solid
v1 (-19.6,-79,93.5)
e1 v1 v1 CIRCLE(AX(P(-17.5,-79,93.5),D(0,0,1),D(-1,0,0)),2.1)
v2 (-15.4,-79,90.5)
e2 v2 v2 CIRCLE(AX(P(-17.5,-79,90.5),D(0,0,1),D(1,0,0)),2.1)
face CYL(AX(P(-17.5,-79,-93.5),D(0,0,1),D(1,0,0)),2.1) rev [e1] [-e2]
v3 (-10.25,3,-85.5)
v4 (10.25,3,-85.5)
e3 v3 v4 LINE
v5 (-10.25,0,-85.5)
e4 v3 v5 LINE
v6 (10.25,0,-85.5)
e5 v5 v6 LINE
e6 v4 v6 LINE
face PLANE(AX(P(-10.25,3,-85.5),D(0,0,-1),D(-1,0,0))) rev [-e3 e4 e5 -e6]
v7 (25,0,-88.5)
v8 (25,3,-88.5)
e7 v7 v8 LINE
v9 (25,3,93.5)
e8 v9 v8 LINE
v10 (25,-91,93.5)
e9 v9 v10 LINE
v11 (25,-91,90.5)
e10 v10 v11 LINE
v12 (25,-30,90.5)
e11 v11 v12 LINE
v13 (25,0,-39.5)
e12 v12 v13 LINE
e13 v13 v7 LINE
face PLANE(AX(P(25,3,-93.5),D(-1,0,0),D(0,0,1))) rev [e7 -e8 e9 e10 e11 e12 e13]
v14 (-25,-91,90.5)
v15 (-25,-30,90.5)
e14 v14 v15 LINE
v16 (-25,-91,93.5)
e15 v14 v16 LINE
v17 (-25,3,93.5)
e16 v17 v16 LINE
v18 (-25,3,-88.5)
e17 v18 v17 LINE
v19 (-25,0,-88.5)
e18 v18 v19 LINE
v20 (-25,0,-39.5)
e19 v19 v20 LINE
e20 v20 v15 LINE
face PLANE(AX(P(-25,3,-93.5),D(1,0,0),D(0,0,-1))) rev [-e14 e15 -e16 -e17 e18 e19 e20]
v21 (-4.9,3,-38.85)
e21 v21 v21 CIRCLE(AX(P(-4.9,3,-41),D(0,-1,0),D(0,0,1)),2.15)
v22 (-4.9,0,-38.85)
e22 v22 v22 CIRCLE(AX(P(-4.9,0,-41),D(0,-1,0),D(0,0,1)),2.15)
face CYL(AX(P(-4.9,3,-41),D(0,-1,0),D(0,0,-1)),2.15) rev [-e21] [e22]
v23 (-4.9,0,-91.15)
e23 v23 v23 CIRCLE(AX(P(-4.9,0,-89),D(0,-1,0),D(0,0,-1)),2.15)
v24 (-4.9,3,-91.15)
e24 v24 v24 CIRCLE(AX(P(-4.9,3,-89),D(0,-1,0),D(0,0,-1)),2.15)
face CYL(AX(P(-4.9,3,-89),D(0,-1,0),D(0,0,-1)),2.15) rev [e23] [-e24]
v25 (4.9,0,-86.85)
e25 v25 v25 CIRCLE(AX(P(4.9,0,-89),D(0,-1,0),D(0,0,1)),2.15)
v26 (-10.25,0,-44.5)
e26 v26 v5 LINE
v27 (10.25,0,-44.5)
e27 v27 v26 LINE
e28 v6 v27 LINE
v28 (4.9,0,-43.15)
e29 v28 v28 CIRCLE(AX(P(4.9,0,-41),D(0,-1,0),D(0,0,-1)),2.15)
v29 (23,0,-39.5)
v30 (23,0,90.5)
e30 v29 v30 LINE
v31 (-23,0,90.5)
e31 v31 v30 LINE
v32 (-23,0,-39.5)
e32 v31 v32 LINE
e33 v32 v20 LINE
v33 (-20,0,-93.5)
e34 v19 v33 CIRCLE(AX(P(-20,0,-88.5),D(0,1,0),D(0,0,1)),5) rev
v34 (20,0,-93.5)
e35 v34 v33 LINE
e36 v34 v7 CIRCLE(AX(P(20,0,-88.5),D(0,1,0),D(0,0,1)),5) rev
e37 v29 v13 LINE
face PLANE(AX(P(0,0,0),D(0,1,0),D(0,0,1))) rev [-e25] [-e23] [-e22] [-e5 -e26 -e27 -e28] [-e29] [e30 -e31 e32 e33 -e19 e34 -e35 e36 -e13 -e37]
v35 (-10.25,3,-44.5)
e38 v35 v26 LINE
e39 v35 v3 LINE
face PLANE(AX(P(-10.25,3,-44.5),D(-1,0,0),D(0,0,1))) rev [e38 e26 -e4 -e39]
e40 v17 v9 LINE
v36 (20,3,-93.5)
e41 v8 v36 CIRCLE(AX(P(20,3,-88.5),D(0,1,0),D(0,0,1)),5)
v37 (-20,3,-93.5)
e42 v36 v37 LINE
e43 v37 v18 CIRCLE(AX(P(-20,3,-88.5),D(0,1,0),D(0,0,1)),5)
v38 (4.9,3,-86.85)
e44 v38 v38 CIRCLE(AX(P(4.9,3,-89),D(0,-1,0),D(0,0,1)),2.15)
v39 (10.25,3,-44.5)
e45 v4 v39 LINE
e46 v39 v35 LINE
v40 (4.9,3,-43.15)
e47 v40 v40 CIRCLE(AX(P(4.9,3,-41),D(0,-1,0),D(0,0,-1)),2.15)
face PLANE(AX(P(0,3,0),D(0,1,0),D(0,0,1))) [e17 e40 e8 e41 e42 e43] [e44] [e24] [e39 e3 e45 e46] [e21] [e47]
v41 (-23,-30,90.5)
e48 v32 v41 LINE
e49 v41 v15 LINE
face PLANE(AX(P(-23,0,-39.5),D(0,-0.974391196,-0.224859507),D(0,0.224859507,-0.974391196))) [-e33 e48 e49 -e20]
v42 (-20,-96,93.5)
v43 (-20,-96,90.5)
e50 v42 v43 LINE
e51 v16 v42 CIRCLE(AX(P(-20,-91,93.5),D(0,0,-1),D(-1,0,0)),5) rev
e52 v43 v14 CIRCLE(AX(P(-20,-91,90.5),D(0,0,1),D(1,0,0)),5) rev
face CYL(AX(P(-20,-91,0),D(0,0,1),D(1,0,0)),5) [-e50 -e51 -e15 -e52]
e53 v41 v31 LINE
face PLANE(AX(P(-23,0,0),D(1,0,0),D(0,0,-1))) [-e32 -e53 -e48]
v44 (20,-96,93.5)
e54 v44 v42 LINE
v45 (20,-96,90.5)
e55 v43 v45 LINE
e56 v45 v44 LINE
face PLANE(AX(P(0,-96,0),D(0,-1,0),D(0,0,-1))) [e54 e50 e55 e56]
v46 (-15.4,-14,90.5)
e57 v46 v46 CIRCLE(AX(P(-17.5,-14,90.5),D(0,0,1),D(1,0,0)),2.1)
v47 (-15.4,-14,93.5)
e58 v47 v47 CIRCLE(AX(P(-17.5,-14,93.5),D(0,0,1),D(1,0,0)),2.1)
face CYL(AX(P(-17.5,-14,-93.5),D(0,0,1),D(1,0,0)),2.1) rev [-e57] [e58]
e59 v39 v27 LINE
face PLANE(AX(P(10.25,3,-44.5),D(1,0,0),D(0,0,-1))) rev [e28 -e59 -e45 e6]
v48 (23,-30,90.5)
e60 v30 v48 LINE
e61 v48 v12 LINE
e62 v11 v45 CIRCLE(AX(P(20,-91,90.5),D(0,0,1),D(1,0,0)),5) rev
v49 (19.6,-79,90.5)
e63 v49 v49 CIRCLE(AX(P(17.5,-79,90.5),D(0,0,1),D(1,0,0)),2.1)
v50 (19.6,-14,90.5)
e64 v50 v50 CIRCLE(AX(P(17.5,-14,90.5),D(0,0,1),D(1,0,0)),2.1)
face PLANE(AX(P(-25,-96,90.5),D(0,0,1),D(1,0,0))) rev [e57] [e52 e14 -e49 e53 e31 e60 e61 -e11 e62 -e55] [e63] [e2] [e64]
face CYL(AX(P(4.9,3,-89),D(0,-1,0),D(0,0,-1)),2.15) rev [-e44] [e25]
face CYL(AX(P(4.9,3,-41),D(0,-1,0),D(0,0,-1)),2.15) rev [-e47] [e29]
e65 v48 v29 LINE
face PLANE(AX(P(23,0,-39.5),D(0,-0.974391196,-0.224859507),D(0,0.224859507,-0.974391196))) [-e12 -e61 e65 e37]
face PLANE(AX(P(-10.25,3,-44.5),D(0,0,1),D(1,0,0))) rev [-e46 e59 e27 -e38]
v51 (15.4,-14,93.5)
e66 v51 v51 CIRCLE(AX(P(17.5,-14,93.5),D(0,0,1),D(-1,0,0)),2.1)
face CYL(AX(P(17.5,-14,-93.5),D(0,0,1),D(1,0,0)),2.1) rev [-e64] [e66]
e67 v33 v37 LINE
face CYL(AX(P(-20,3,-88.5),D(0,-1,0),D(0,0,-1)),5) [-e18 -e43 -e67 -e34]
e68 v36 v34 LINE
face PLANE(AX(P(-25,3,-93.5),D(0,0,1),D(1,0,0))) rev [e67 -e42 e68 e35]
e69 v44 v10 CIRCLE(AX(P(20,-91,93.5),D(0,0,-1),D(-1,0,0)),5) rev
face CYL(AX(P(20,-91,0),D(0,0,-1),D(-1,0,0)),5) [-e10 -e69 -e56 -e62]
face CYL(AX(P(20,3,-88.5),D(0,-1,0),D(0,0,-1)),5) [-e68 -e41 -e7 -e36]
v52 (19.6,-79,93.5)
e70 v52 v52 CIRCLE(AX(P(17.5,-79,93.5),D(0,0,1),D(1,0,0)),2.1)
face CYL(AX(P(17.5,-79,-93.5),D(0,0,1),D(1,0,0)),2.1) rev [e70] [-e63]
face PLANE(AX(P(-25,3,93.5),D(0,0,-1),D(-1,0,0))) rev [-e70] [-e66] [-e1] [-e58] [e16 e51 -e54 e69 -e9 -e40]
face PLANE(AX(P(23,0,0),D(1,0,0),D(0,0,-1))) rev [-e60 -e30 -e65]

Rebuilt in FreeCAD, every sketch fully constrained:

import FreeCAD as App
import Part
import Sketcher


def edges_at(feature, points):
    """Names of the edges that pass closest to the given points."""
    edges = feature.Shape.Edges
    near = lambda p: min(range(len(edges)), key=lambda i: edges[i].distToShape(Part.Vertex(*p))[0])
    return sorted({f"Edge{near(p) + 1}" for p in points})

doc = App.newDocument("Part")
body = doc.addObject("PartDesign::Body", "Body")

sketch1 = body.newObject("Sketcher::SketchObject", "Sketch")
sketch1.AttachmentSupport = (doc.getObject("XZ_Plane"), [""])
sketch1.MapMode = "FlatFace"
sketch1.addGeometry(Part.LineSegment(App.Vector(-25, -94, 0), App.Vector(-25, 94, 0)), False)
sketch1.addGeometry(Part.LineSegment(App.Vector(-25, 94, 0), App.Vector(25, 94, 0)), False)
sketch1.addGeometry(Part.LineSegment(App.Vector(25, 94, 0), App.Vector(25, -94, 0)), False)
sketch1.addGeometry(Part.LineSegment(App.Vector(25, -94, 0), App.Vector(-25, -94, 0)), False)
sketch1.addConstraint(Sketcher.Constraint("Coincident", 0, 2, 1, 1))
sketch1.addConstraint(Sketcher.Constraint("Coincident", 1, 2, 2, 1))
sketch1.addConstraint(Sketcher.Constraint("Coincident", 2, 2, 3, 1))
sketch1.addConstraint(Sketcher.Constraint("Coincident", 3, 2, 0, 1))
sketch1.addConstraint(Sketcher.Constraint("Vertical", 0))
sketch1.addConstraint(Sketcher.Constraint("Horizontal", 1))
sketch1.addConstraint(Sketcher.Constraint("Vertical", 2))
sketch1.addConstraint(Sketcher.Constraint("Horizontal", 3))
sketch1.addConstraint(Sketcher.Constraint("Symmetric", 0, 2, 2, 2, -1, 1))
sketch1.addConstraint(Sketcher.Constraint("DistanceX", 1, 1, 1, 2, 50.0))
sketch1.addConstraint(Sketcher.Constraint("DistanceY", 0, 1, 0, 2, 187.0))
pad1 = body.newObject("PartDesign::Pad", "Pad")
pad1.Profile = sketch1
pad1.Length = 3
pad1.Reversed = True

sketch2 = body.newObject("Sketcher::SketchObject", "Sketch001")
sketch2.AttachmentSupport = (doc.getObject("XZ_Plane"), [""])
sketch2.MapMode = "FlatFace"
sketch2.addGeometry(Part.Circle(App.Vector(-4.9, -89, 0), App.Vector(0, 0, 1), 2.1), False)
sketch2.addGeometry(Part.Circle(App.Vector(4.9, -89, 0), App.Vector(0, 0, 1), 2.1), False)
sketch2.addGeometry(Part.Circle(App.Vector(4.9, -41, 0), App.Vector(0, 0, 1), 2.1), False)
sketch2.addGeometry(Part.Circle(App.Vector(-4.9, -41, 0), App.Vector(0, 0, 1), 2.1), False)
sketch2.addGeometry(Part.LineSegment(App.Vector(-10.2, -44.5, 0), App.Vector(-10.2, -85.5, 0)), False)
sketch2.addGeometry(Part.LineSegment(App.Vector(-10.2, -85.5, 0), App.Vector(10.2, -85.5, 0)), False)
sketch2.addGeometry(Part.LineSegment(App.Vector(10.2, -85.5, 0), App.Vector(10.2, -44.5, 0)), False)
sketch2.addGeometry(Part.LineSegment(App.Vector(10.2, -44.5, 0), App.Vector(-10.2, -44.5, 0)), False)
sketch2.addConstraint(Sketcher.Constraint("Coincident", 4, 2, 5, 1))
sketch2.addConstraint(Sketcher.Constraint("Coincident", 5, 2, 6, 1))
sketch2.addConstraint(Sketcher.Constraint("Coincident", 6, 2, 7, 1))
sketch2.addConstraint(Sketcher.Constraint("Coincident", 7, 2, 4, 1))
sketch2.addConstraint(Sketcher.Constraint("Vertical", 4))
sketch2.addConstraint(Sketcher.Constraint("Horizontal", 5))
sketch2.addConstraint(Sketcher.Constraint("Vertical", 6))
sketch2.addConstraint(Sketcher.Constraint("Horizontal", 7))
sketch2.addConstraint(Sketcher.Constraint("Equal", 0, 1))
sketch2.addConstraint(Sketcher.Constraint("Equal", 1, 2))
sketch2.addConstraint(Sketcher.Constraint("Equal", 2, 3))
sketch2.addConstraint(Sketcher.Constraint("Symmetric", 0, 3, 1, 3, -2))
sketch2.addConstraint(Sketcher.Constraint("Symmetric", 2, 3, 3, 3, -2))
sketch2.addConstraint(Sketcher.Constraint("Vertical", 1, 3, 2, 3))
sketch2.addConstraint(Sketcher.Constraint("Diameter", 0, 4.3))
sketch2.addConstraint(Sketcher.Constraint("DistanceY", 4, 2, 4, 1, 41.0))
sketch2.addConstraint(Sketcher.Constraint("DistanceX", 5, 1, 5, 2, 20.5))
sketch2.addConstraint(Sketcher.Constraint("DistanceY", 0, 3, -1, 1, 89.0))
sketch2.addConstraint(Sketcher.Constraint("DistanceY", 2, 3, -1, 1, 41.0))
sketch2.addConstraint(Sketcher.Constraint("DistanceX", 0, 3, -1, 1, 4.9))
sketch2.addConstraint(Sketcher.Constraint("DistanceY", 4, 2, -1, 1, 85.5))
sketch2.addConstraint(Sketcher.Constraint("DistanceX", 4, 2, -1, 1, 10.25))
pocket1 = body.newObject("PartDesign::Pocket", "Pocket")
pocket1.Profile = sketch2
pocket1.Type = "ThroughAll"

sketch3 = body.newObject("Sketcher::SketchObject", "Sketch002")
sketch3.AttachmentSupport = (doc.getObject("XZ_Plane"), [""])
sketch3.MapMode = "FlatFace"
sketch3.addGeometry(Part.LineSegment(App.Vector(-25, 93.5, 0), App.Vector(-25, 90.5, 0)), False)
sketch3.addGeometry(Part.LineSegment(App.Vector(-25, 90.5, 0), App.Vector(25, 90.5, 0)), False)
sketch3.addGeometry(Part.LineSegment(App.Vector(25, 90.5, 0), App.Vector(25, 93.5, 0)), False)
sketch3.addGeometry(Part.LineSegment(App.Vector(25, 93.5, 0), App.Vector(-25, 93.5, 0)), False)
sketch3.addConstraint(Sketcher.Constraint("Coincident", 0, 2, 1, 1))
sketch3.addConstraint(Sketcher.Constraint("Coincident", 1, 2, 2, 1))
sketch3.addConstraint(Sketcher.Constraint("Coincident", 2, 2, 3, 1))
sketch3.addConstraint(Sketcher.Constraint("Coincident", 3, 2, 0, 1))
sketch3.addConstraint(Sketcher.Constraint("Vertical", 0))
sketch3.addConstraint(Sketcher.Constraint("Horizontal", 1))
sketch3.addConstraint(Sketcher.Constraint("Vertical", 2))
sketch3.addConstraint(Sketcher.Constraint("Horizontal", 3))
sketch3.addConstraint(Sketcher.Constraint("DistanceX", 1, 1, 1, 2, 50.0))
sketch3.addConstraint(Sketcher.Constraint("DistanceY", 0, 2, 0, 1, 3.0))
sketch3.addConstraint(Sketcher.Constraint("DistanceX", 0, 2, -1, 1, 25.0))
sketch3.addConstraint(Sketcher.Constraint("DistanceY", -1, 1, 0, 2, 90.5))
pad2 = body.newObject("PartDesign::Pad", "Pad001")
pad2.Profile = sketch3
pad2.Length = 96

sketch4 = body.newObject("Sketcher::SketchObject", "Sketch003")
sketch4.AttachmentSupport = (doc.getObject("XY_Plane"), [""])
sketch4.MapMode = "FlatFace"
sketch4.AttachmentOffset = App.Placement(App.Vector(0, 0, 93.5), App.Rotation())
sketch4.addGeometry(Part.Circle(App.Vector(-17.5, -14, 0), App.Vector(0, 0, 1), 2.1), False)
sketch4.addGeometry(Part.Circle(App.Vector(17.5, -14, 0), App.Vector(0, 0, 1), 2.1), False)
sketch4.addGeometry(Part.Circle(App.Vector(17.5, -79, 0), App.Vector(0, 0, 1), 2.1), False)
sketch4.addGeometry(Part.Circle(App.Vector(-17.5, -79, 0), App.Vector(0, 0, 1), 2.1), False)
sketch4.addConstraint(Sketcher.Constraint("Equal", 0, 1))
sketch4.addConstraint(Sketcher.Constraint("Equal", 1, 2))
sketch4.addConstraint(Sketcher.Constraint("Equal", 2, 3))
sketch4.addConstraint(Sketcher.Constraint("Symmetric", 0, 3, 1, 3, -2))
sketch4.addConstraint(Sketcher.Constraint("Symmetric", 2, 3, 3, 3, -2))
sketch4.addConstraint(Sketcher.Constraint("Vertical", 1, 3, 2, 3))
sketch4.addConstraint(Sketcher.Constraint("Diameter", 0, 4.2))
sketch4.addConstraint(Sketcher.Constraint("DistanceY", 0, 3, -1, 1, 14.0))
sketch4.addConstraint(Sketcher.Constraint("DistanceY", 2, 3, -1, 1, 79.0))
sketch4.addConstraint(Sketcher.Constraint("DistanceX", 0, 3, 1, 3, 35.0))
pocket2 = body.newObject("PartDesign::Pocket", "Pocket001")
pocket2.Profile = sketch4
pocket2.Type = "ThroughAll"
doc.recompute()

fillet = body.newObject("PartDesign::Fillet", "Fillet")
fillet.Base = (pocket2, edges_at(pocket2, [
    (-25, -96, 92),
    (25, -96, 92),
    (-25, 1.5, -93.5),
    (25, 1.5, -93.5),
]))
fillet.Radius = 5

sketch5 = body.newObject("Sketcher::SketchObject", "Sketch004")
sketch5.AttachmentSupport = (doc.getObject("YZ_Plane"), [""])
sketch5.MapMode = "FlatFace"
sketch5.AttachmentOffset = App.Placement(App.Vector(0, 0, 25), App.Rotation())
sketch5.addGeometry(Part.LineSegment(App.Vector(-30, 90, 0), App.Vector(0, -40, 0)), False)
sketch5.addGeometry(Part.LineSegment(App.Vector(0, -40, 0), App.Vector(0, 90, 0)), False)
sketch5.addGeometry(Part.LineSegment(App.Vector(0, 90, 0), App.Vector(-30, 90, 0)), False)
sketch5.addConstraint(Sketcher.Constraint("Coincident", 0, 2, 1, 1))
sketch5.addConstraint(Sketcher.Constraint("Coincident", 1, 2, 2, 1))
sketch5.addConstraint(Sketcher.Constraint("Coincident", 2, 2, 0, 1))
sketch5.addConstraint(Sketcher.Constraint("Vertical", 1))
sketch5.addConstraint(Sketcher.Constraint("Horizontal", 2))
sketch5.addConstraint(Sketcher.Constraint("PointOnObject", 0, 2, -2))
sketch5.addConstraint(Sketcher.Constraint("DistanceX", 2, 2, 2, 1, 30.0))
sketch5.addConstraint(Sketcher.Constraint("DistanceY", 1, 1, 1, 2, 130.0))
sketch5.addConstraint(Sketcher.Constraint("DistanceY", 0, 2, -1, 1, 39.5))
pad3 = body.newObject("PartDesign::Pad", "Pad002")
pad3.Profile = sketch5
pad3.Length = 2
pad3.Reversed = True

sketch6 = body.newObject("Sketcher::SketchObject", "Sketch005")
sketch6.AttachmentSupport = (doc.getObject("YZ_Plane"), [""])
sketch6.MapMode = "FlatFace"
sketch6.AttachmentOffset = App.Placement(App.Vector(0, 0, -25), App.Rotation())
sketch6.addGeometry(Part.LineSegment(App.Vector(0, -40, 0), App.Vector(-30, 90, 0)), False)
sketch6.addGeometry(Part.LineSegment(App.Vector(-30, 90, 0), App.Vector(0, 90, 0)), False)
sketch6.addGeometry(Part.LineSegment(App.Vector(0, 90, 0), App.Vector(0, -40, 0)), False)
sketch6.addConstraint(Sketcher.Constraint("Coincident", 0, 2, 1, 1))
sketch6.addConstraint(Sketcher.Constraint("Coincident", 1, 2, 2, 1))
sketch6.addConstraint(Sketcher.Constraint("Coincident", 2, 2, 0, 1))
sketch6.addConstraint(Sketcher.Constraint("Horizontal", 1))
sketch6.addConstraint(Sketcher.Constraint("Vertical", 2))
sketch6.addConstraint(Sketcher.Constraint("PointOnObject", 1, 2, -2))
sketch6.addConstraint(Sketcher.Constraint("DistanceX", 1, 1, 1, 2, 30.0))
sketch6.addConstraint(Sketcher.Constraint("DistanceY", 2, 2, 2, 1, 130.0))
sketch6.addConstraint(Sketcher.Constraint("DistanceY", -1, 1, 0, 2, 90.5))
pad4 = body.newObject("PartDesign::Pad", "Pad003")
pad4.Profile = sketch6
pad4.Length = 2

doc.recompute()
